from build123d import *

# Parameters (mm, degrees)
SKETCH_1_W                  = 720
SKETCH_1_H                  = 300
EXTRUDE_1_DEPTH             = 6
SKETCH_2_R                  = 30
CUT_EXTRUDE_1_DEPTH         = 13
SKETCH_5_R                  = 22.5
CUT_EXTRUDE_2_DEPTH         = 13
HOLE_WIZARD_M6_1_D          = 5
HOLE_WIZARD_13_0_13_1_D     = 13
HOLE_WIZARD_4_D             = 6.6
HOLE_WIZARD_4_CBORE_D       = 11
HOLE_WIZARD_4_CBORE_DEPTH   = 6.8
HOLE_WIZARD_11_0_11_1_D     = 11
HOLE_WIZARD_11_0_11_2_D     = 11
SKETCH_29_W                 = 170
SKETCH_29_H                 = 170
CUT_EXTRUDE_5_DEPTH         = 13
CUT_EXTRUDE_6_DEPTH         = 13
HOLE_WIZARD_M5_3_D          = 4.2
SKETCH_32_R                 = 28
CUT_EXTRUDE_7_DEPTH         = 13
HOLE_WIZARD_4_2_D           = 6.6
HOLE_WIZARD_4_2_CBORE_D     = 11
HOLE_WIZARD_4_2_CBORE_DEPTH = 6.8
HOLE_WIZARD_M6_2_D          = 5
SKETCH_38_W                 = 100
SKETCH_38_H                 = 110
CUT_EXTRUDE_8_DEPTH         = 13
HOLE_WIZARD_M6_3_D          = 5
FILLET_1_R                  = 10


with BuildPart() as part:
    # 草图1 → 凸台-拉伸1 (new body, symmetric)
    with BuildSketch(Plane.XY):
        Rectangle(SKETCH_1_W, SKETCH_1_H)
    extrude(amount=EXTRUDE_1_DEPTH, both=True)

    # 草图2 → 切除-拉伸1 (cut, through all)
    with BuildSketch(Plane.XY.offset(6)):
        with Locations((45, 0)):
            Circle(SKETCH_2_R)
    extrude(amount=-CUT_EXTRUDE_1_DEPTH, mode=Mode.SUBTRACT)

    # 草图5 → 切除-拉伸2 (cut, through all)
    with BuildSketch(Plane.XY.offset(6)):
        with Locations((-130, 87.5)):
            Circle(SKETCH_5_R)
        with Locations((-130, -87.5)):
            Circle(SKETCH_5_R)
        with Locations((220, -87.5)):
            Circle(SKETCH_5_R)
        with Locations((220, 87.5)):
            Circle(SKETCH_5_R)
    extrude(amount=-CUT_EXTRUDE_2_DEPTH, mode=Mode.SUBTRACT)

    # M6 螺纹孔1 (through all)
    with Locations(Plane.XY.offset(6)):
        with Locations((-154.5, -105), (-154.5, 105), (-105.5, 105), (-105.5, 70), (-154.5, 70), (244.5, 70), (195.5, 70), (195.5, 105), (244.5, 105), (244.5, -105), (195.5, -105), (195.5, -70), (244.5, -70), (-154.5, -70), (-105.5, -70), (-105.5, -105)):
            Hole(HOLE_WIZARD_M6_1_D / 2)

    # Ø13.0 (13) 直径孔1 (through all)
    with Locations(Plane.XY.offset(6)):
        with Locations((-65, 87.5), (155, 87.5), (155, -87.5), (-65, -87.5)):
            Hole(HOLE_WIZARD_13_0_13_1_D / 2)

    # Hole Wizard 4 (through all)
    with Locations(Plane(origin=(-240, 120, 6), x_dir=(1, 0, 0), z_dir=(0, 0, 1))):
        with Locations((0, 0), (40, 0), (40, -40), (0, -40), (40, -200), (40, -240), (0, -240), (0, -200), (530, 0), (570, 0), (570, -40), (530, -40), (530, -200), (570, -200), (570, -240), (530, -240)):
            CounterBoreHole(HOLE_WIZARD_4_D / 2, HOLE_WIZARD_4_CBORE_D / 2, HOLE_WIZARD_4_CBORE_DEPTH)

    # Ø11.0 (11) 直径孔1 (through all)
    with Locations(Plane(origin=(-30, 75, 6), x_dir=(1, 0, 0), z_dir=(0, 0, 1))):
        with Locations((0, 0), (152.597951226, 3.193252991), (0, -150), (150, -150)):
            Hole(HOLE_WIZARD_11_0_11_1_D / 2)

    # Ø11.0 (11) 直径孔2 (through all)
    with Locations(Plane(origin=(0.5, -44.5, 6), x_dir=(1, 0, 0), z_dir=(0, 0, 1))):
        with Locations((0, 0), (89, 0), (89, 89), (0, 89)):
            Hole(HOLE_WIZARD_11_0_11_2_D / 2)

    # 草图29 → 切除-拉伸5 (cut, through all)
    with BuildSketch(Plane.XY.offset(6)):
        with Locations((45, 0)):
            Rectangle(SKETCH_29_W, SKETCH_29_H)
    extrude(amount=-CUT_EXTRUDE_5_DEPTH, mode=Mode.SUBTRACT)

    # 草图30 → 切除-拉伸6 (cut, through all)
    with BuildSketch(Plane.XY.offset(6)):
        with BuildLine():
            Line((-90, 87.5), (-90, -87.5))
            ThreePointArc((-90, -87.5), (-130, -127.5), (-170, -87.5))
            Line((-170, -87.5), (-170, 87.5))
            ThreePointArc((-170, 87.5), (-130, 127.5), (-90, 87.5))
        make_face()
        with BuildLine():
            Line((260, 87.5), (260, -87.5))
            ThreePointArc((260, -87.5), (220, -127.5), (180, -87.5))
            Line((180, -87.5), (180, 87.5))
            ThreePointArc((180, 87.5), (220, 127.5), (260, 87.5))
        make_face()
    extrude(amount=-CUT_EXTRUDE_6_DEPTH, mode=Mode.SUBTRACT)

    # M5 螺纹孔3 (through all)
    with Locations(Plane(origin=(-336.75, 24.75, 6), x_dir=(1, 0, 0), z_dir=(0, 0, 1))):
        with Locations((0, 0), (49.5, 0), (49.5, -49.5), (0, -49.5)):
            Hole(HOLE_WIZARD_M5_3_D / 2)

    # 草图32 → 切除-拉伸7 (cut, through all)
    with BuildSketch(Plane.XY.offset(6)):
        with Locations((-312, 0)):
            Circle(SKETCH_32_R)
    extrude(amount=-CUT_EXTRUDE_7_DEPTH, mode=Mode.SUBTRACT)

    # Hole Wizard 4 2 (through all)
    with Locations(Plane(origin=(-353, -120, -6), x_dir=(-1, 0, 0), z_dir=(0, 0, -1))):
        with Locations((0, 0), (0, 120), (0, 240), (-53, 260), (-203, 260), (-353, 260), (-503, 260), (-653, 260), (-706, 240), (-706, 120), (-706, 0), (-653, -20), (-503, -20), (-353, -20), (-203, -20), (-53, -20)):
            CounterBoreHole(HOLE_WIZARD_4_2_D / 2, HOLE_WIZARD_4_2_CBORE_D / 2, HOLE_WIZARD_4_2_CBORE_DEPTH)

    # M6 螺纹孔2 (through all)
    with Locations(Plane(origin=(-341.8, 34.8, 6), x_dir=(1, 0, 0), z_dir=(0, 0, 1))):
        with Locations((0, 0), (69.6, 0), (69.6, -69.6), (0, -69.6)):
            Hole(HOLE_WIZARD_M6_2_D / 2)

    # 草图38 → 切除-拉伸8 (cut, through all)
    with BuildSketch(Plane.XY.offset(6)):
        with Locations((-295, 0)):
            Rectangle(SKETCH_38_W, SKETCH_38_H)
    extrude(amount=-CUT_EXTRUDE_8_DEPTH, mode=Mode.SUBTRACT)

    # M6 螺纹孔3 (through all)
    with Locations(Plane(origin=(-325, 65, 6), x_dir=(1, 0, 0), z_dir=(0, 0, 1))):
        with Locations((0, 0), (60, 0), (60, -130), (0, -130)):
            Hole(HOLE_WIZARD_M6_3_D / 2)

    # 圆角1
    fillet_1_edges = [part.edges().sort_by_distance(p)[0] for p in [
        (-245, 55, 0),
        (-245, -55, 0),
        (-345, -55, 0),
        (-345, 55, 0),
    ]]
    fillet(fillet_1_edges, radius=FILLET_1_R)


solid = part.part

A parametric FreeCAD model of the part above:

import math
import FreeCAD as App
import Part
import Sketcher
Q = App.Units.Quantity


def edges_at(feature, points):
    """Names of the edges that pass closest to the given points."""
    edges = feature.Shape.Edges
    near = lambda p: min(range(len(edges)), key=lambda i: edges[i].distToShape(Part.Vertex(*p))[0])
    return sorted({f"Edge{near(p) + 1}" for p in points})


def add_polygon(sketch, points):
    """Adds a closed chain of lines whose ends are joined by coincident constraints."""
    first, n = sketch.GeometryCount, len(points)
    for a, b in zip(points, points[1:] + points[:1]):
        sketch.addGeometry(Part.LineSegment(App.Vector(*a, 0), App.Vector(*b, 0)), False)
    for i in range(n):
        sketch.addConstraint(Sketcher.Constraint("Coincident", first + i, 2, first + (i + 1) % n, 1))

doc = App.newDocument("Part")
body = doc.addObject("PartDesign::Body", "Body")

# Sketch on XY plane
sketch1 = doc.addObject("Sketcher::SketchObject", "Sketch")
body.addObject(sketch1)
sketch1.AttachmentSupport = (doc.XY_Plane, [""])
sketch1.MapMode = "FlatFace"
add_polygon(sketch1, [(-360, 150), (-360, -150), (360, -150), (360, 150)])  # lines 0-3
sketch1.addConstraint([
    Sketcher.Constraint("Vertical", 0),
    Sketcher.Constraint("Horizontal", 1),
    Sketcher.Constraint("Vertical", 2),
    Sketcher.Constraint("Horizontal", 3),
    Sketcher.Constraint("Symmetric", 0, 2, 2, 2, -1, 1),
    Sketcher.Constraint("DistanceX", 1, 1, 1, 2, Q("720 mm")),
    Sketcher.Constraint("DistanceY", 0, 2, 0, 1, Q("300 mm")),
])
pad1 = doc.addObject("PartDesign::Pad", "Pad")
body.addObject(pad1)
pad1.Profile = sketch1
pad1.Length = 12
pad1.Midplane = True

# Sketch on XY plane
sketch2 = doc.addObject("Sketcher::SketchObject", "Sketch001")
body.addObject(sketch2)
sketch2.AttachmentSupport = (doc.XY_Plane, [""])
sketch2.MapMode = "FlatFace"
sketch2.AttachmentOffset = App.Placement(App.Vector(0, 0, 6), App.Rotation())
sketch2.addGeometry(Part.Circle(App.Vector(45, 0, 0), App.Vector(0, 0, 1), 30), False)
sketch2.addConstraint([
    Sketcher.Constraint("PointOnObject", 0, 3, -1),
    Sketcher.Constraint("Diameter", 0, Q("60 mm")),
    Sketcher.Constraint("DistanceX", -1, 1, 0, 3, Q("45 mm")),
])
pocket1 = doc.addObject("PartDesign::Pocket", "Pocket")
body.addObject(pocket1)
pocket1.Profile = sketch2
pocket1.Type = "ThroughAll"

# Sketch on XY plane
sketch3 = doc.addObject("Sketcher::SketchObject", "Sketch002")
body.addObject(sketch3)
sketch3.AttachmentSupport = (doc.XY_Plane, [""])
sketch3.MapMode = "FlatFace"
sketch3.AttachmentOffset = App.Placement(App.Vector(0, 0, 6), App.Rotation())
sketch3.addGeometry([
    Part.Circle(App.Vector(-130, 88, 0), App.Vector(0, 0, 1), 22),
    Part.Circle(App.Vector(-130, -88, 0), App.Vector(0, 0, 1), 22),
    Part.Circle(App.Vector(220, -88, 0), App.Vector(0, 0, 1), 22),
    Part.Circle(App.Vector(220, 88, 0), App.Vector(0, 0, 1), 22),
], False)
sketch3.addConstraint([
    Sketcher.Constraint("Equal", 0, 1),
    Sketcher.Constraint("Equal", 1, 2),
    Sketcher.Constraint("Equal", 2, 3),
    Sketcher.Constraint("Symmetric", 0, 3, 1, 3, -1),
    Sketcher.Constraint("Symmetric", 2, 3, 3, 3, -1),
    Sketcher.Constraint("Horizontal", 1, 3, 2, 3),
    Sketcher.Constraint("Diameter", 0, Q("45 mm")),
    Sketcher.Constraint("DistanceX", 0, 3, -1, 1, Q("130 mm")),
    Sketcher.Constraint("DistanceX", -1, 1, 2, 3, Q("220 mm")),
    Sketcher.Constraint("DistanceY", 1, 3, 0, 3, Q("175 mm")),
])
pocket2 = doc.addObject("PartDesign::Pocket", "Pocket001")
body.addObject(pocket2)
pocket2.Profile = sketch3
pocket2.Type = "ThroughAll"

# Sketch on XY plane
sketch4 = doc.addObject("Sketcher::SketchObject", "Sketch003")
body.addObject(sketch4)
sketch4.AttachmentSupport = (doc.XY_Plane, [""])
sketch4.MapMode = "FlatFace"
sketch4.AttachmentOffset = App.Placement(App.Vector(0, 0, 6), App.Rotation())
sketch4.addGeometry([
    Part.Circle(App.Vector(-154.5, -105, 0), App.Vector(0, 0, 1), 2.5),  # 0
    Part.Circle(App.Vector(-154.5, 105, 0), App.Vector(0, 0, 1), 2.5),  # 1
    Part.Circle(App.Vector(-105.5, 105, 0), App.Vector(0, 0, 1), 2.5),  # 2
    Part.Circle(App.Vector(-105.5, 70, 0), App.Vector(0, 0, 1), 2.5),  # 3
    Part.Circle(App.Vector(-154.5, 70, 0), App.Vector(0, 0, 1), 2.5),  # 4
    Part.Circle(App.Vector(244.5, 70, 0), App.Vector(0, 0, 1), 2.5),  # 5
    Part.Circle(App.Vector(195.5, 70, 0), App.Vector(0, 0, 1), 2.5),  # 6
    Part.Circle(App.Vector(195.5, 105, 0), App.Vector(0, 0, 1), 2.5),  # 7
    Part.Circle(App.Vector(244.5, 105, 0), App.Vector(0, 0, 1), 2.5),  # 8
    Part.Circle(App.Vector(244.5, -105, 0), App.Vector(0, 0, 1), 2.5),  # 9
    Part.Circle(App.Vector(195.5, -105, 0), App.Vector(0, 0, 1), 2.5),  # 10
    Part.Circle(App.Vector(195.5, -70, 0), App.Vector(0, 0, 1), 2.5),  # 11
    Part.Circle(App.Vector(244.5, -70, 0), App.Vector(0, 0, 1), 2.5),  # 12
    Part.Circle(App.Vector(-154.5, -70, 0), App.Vector(0, 0, 1), 2.5),  # 13
    Part.Circle(App.Vector(-105.5, -70, 0), App.Vector(0, 0, 1), 2.5),  # 14
    Part.Circle(App.Vector(-105.5, -105, 0), App.Vector(0, 0, 1), 2.5),  # 15
], False)
sketch4.addConstraint([
    Sketcher.Constraint("Equal", 0, 1),
    Sketcher.Constraint("Equal", 1, 2),
    Sketcher.Constraint("Equal", 2, 3),
    Sketcher.Constraint("Equal", 3, 4),
    Sketcher.Constraint("Equal", 4, 5),
    Sketcher.Constraint("Equal", 5, 6),
    Sketcher.Constraint("Equal", 6, 7),
    Sketcher.Constraint("Equal", 7, 8),
    Sketcher.Constraint("Equal", 8, 9),
    Sketcher.Constraint("Equal", 9, 10),
    Sketcher.Constraint("Equal", 10, 11),
    Sketcher.Constraint("Equal", 11, 12),
    Sketcher.Constraint("Equal", 12, 13),
    Sketcher.Constraint("Equal", 13, 14),
    Sketcher.Constraint("Equal", 14, 15),
    Sketcher.Constraint("Symmetric", 0, 3, 1, 3, -1),
    Sketcher.Constraint("Symmetric", 8, 3, 9, 3, -1),
    Sketcher.Constraint("Symmetric", 7, 3, 10, 3, -1),
    Sketcher.Constraint("Symmetric", 6, 3, 11, 3, -1),
    Sketcher.Constraint("Symmetric", 5, 3, 12, 3, -1),
    Sketcher.Constraint("Symmetric", 4, 3, 13, 3, -1),
    Sketcher.Constraint("Symmetric", 3, 3, 14, 3, -1),
    Sketcher.Constraint("Symmetric", 2, 3, 15, 3, -1),
    Sketcher.Constraint("Horizontal", 1, 3, 2, 3),
    Sketcher.Constraint("Horizontal", 3, 3, 4, 3),
    Sketcher.Constraint("Horizontal", 4, 3, 5, 3),
    Sketcher.Constraint("Horizontal", 5, 3, 6, 3),
    Sketcher.Constraint("Horizontal", 2, 3, 7, 3),
    Sketcher.Constraint("Horizontal", 7, 3, 8, 3),
    Sketcher.Constraint("Vertical", 2, 3, 3, 3),
    Sketcher.Constraint("Vertical", 1, 3, 4, 3),
    Sketcher.Constraint("Vertical", 6, 3, 7, 3),
    Sketcher.Constraint("Vertical", 5, 3, 8, 3),
    Sketcher.Constraint("Diameter", 0, Q("5 mm")),
    Sketcher.Constraint("DistanceY", 0, 3, -1, 1, Q("105 mm")),
    Sketcher.Constraint("DistanceY", -1, 1, 3, 3, Q("70 mm")),
    Sketcher.Constraint("DistanceX", 1, 3, 2, 3, Q("49 mm")),
    Sketcher.Constraint("DistanceX", 3, 3, 5, 3, Q("350 mm")),
    Sketcher.Constraint("DistanceX", 6, 3, 5, 3, Q("49 mm")),
    Sketcher.Constraint("DistanceX", 0, 3, -1, 1, Q("154.5 mm")),
])
doc.recompute()
hole = doc.addObject("PartDesign::Hole", "Hole")
body.addObject(hole)
hole.Profile = sketch4
hole.ThreadType = "None"
hole.Diameter = 5
hole.DepthType = "ThroughAll"

# Sketch on XY plane
sketch5 = doc.addObject("Sketcher::SketchObject", "Sketch004")
body.addObject(sketch5)
sketch5.AttachmentSupport = (doc.XY_Plane, [""])
sketch5.MapMode = "FlatFace"
sketch5.AttachmentOffset = App.Placement(App.Vector(0, 0, 6), App.Rotation())
sketch5.addGeometry([
    Part.Circle(App.Vector(-65, 88, 0), App.Vector(0, 0, 1), 6),
    Part.Circle(App.Vector(155, 88, 0), App.Vector(0, 0, 1), 6),
    Part.Circle(App.Vector(155, -88, 0), App.Vector(0, 0, 1), 6),
    Part.Circle(App.Vector(-65, -88, 0), App.Vector(0, 0, 1), 6),
], False)
sketch5.addConstraint([
    Sketcher.Constraint("Equal", 0, 1),
    Sketcher.Constraint("Equal", 1, 2),
    Sketcher.Constraint("Equal", 2, 3),
    Sketcher.Constraint("Symmetric", 1, 3, 2, 3, -1),
    Sketcher.Constraint("Symmetric", 0, 3, 3, 3, -1),
    Sketcher.Constraint("Horizontal", 0, 3, 1, 3),
    Sketcher.Constraint("Diameter", 0, Q("13 mm")),
    Sketcher.Constraint("DistanceX", 0, 3, -1, 1, Q("65 mm")),
    Sketcher.Constraint("DistanceX", -1, 1, 1, 3, Q("155 mm")),
    Sketcher.Constraint("DistanceY", 2, 3, 1, 3, Q("175 mm")),
])
doc.recompute()
hole2 = doc.addObject("PartDesign::Hole", "Hole001")
body.addObject(hole2)
hole2.Profile = sketch5
hole2.ThreadType = "None"
hole2.Diameter = 13
hole2.DepthType = "ThroughAll"

# Sketch on XY plane
sketch6 = doc.addObject("Sketcher::SketchObject", "Sketch005")
body.addObject(sketch6)
sketch6.AttachmentSupport = (doc.XY_Plane, [""])
sketch6.MapMode = "FlatFace"
sketch6.AttachmentOffset = App.Placement(App.Vector(0, 0, 6), App.Rotation())
sketch6.addGeometry([
    Part.Circle(App.Vector(-240, 120, 0), App.Vector(0, 0, 1), 3.3),  # 0
    Part.Circle(App.Vector(-200, 120, 0), App.Vector(0, 0, 1), 3.3),  # 1
    Part.Circle(App.Vector(-200, 80, 0), App.Vector(0, 0, 1), 3.3),  # 2
    Part.Circle(App.Vector(-240, 80, 0), App.Vector(0, 0, 1), 3.3),  # 3
    Part.Circle(App.Vector(-200, -80, 0), App.Vector(0, 0, 1), 3.3),  # 4
    Part.Circle(App.Vector(-200, -120, 0), App.Vector(0, 0, 1), 3.3),  # 5
    Part.Circle(App.Vector(-240, -120, 0), App.Vector(0, 0, 1), 3.3),  # 6
    Part.Circle(App.Vector(-240, -80, 0), App.Vector(0, 0, 1), 3.3),  # 7
    Part.Circle(App.Vector(290, 120, 0), App.Vector(0, 0, 1), 3.3),  # 8
    Part.Circle(App.Vector(330, 120, 0), App.Vector(0, 0, 1), 3.3),  # 9
    Part.Circle(App.Vector(330, 80, 0), App.Vector(0, 0, 1), 3.3),  # 10
    Part.Circle(App.Vector(290, 80, 0), App.Vector(0, 0, 1), 3.3),  # 11
    Part.Circle(App.Vector(290, -80, 0), App.Vector(0, 0, 1), 3.3),  # 12
    Part.Circle(App.Vector(330, -80, 0), App.Vector(0, 0, 1), 3.3),  # 13
    Part.Circle(App.Vector(330, -120, 0), App.Vector(0, 0, 1), 3.3),  # 14
    Part.Circle(App.Vector(290, -120, 0), App.Vector(0, 0, 1), 3.3),  # 15
], False)
sketch6.addConstraint([
    Sketcher.Constraint("Equal", 0, 1),
    Sketcher.Constraint("Equal", 1, 2),
    Sketcher.Constraint("Equal", 2, 3),
    Sketcher.Constraint("Equal", 3, 4),
    Sketcher.Constraint("Equal", 4, 5),
    Sketcher.Constraint("Equal", 5, 6),
    Sketcher.Constraint("Equal", 6, 7),
    Sketcher.Constraint("Equal", 7, 8),
    Sketcher.Constraint("Equal", 8, 9),
    Sketcher.Constraint("Equal", 9, 10),
    Sketcher.Constraint("Equal", 10, 11),
    Sketcher.Constraint("Equal", 11, 12),
    Sketcher.Constraint("Equal", 12, 13),
    Sketcher.Constraint("Equal", 13, 14),
    Sketcher.Constraint("Equal", 14, 15),
    Sketcher.Constraint("Symmetric", 2, 3, 4, 3, -1),
    Sketcher.Constraint("Symmetric", 1, 3, 5, 3, -1),
    Sketcher.Constraint("Symmetric", 0, 3, 6, 3, -1),
    Sketcher.Constraint("Symmetric", 3, 3, 7, 3, -1),
    Sketcher.Constraint("Symmetric", 11, 3, 12, 3, -1),
    Sketcher.Constraint("Symmetric", 10, 3, 13, 3, -1),
    Sketcher.Constraint("Symmetric", 9, 3, 14, 3, -1),
    Sketcher.Constraint("Symmetric", 8, 3, 15, 3, -1),
    Sketcher.Constraint("Horizontal", 0, 3, 1, 3),
    Sketcher.Constraint("Horizontal", 2, 3, 3, 3),
    Sketcher.Constraint("Horizontal", 1, 3, 8, 3),
    Sketcher.Constraint("Horizontal", 8, 3, 9, 3),
    Sketcher.Constraint("Horizontal", 3, 3, 10, 3),
    Sketcher.Constraint("Horizontal", 10, 3, 11, 3),
    Sketcher.Constraint("Vertical", 1, 3, 2, 3),
    Sketcher.Constraint("Vertical", 0, 3, 3, 3),
    Sketcher.Constraint("Vertical", 9, 3, 10, 3),
    Sketcher.Constraint("Vertical", 8, 3, 11, 3),
    Sketcher.Constraint("Diameter", 0, Q("6.6 mm")),
    Sketcher.Constraint("DistanceX", 0, 3, -1, 1, Q("240 mm")),
    Sketcher.Constraint("DistanceY", -1, 1, 0, 3, Q("120 mm")),
    Sketcher.Constraint("DistanceX", 1, 3, -1, 1, Q("200 mm")),
    Sketcher.Constraint("DistanceY", -1, 1, 2, 3, Q("80 mm")),
    Sketcher.Constraint("DistanceX", -1, 1, 8, 3, Q("290 mm")),
    Sketcher.Constraint("DistanceX", -1, 1, 9, 3, Q("330 mm")),
])
doc.recompute()
hole3 = doc.addObject("PartDesign::Hole", "Hole002")
body.addObject(hole3)
hole3.Profile = sketch6
hole3.ThreadType = "None"
hole3.Diameter = 6.6
hole3.DepthType = "ThroughAll"
hole3.HoleCutType = "Counterbore"
hole3.HoleCutDiameter = 11
hole3.HoleCutDepth = 6.8

# Sketch on XY plane
sketch7 = doc.addObject("Sketcher::SketchObject", "Sketch006")
body.addObject(sketch7)
sketch7.AttachmentSupport = (doc.XY_Plane, [""])
sketch7.MapMode = "FlatFace"
sketch7.AttachmentOffset = App.Placement(App.Vector(0, 0, 6), App.Rotation())
sketch7.addGeometry([
    Part.Circle(App.Vector(-30, 75, 0), App.Vector(0, 0, 1), 6),
    Part.Circle(App.Vector(123, 78, 0), App.Vector(0, 0, 1), 6),
    Part.Circle(App.Vector(-30, -75, 0), App.Vector(0, 0, 1), 6),
    Part.Circle(App.Vector(120, -75, 0), App.Vector(0, 0, 1), 6),
], False)
sketch7.addConstraint([
    Sketcher.Constraint("Equal", 0, 1),
    Sketcher.Constraint("Equal", 1, 2),
    Sketcher.Constraint("Equal", 2, 3),
    Sketcher.Constraint("Symmetric", 0, 3, 2, 3, -1),
    Sketcher.Constraint("Horizontal", 2, 3, 3, 3),
    Sketcher.Constraint("Diameter", 0, Q("11 mm")),
    Sketcher.Constraint("DistanceX", 0, 3, -1, 1, Q("30 mm")),
    Sketcher.Constraint("DistanceY", -1, 1, 0, 3, Q("75 mm")),
    Sketcher.Constraint("DistanceX", -1, 1, 3, 3, Q("120 mm")),
    Sketcher.Constraint("DistanceX", -1, 1, 1, 3, Q("122.597951 mm")),
    Sketcher.Constraint("DistanceY", -1, 1, 1, 3, Q("78.193253 mm")),
])
doc.recompute()
hole4 = doc.addObject("PartDesign::Hole", "Hole003")
body.addObject(hole4)
hole4.Profile = sketch7
hole4.ThreadType = "None"
hole4.Diameter = 11
hole4.DepthType = "ThroughAll"

# Sketch on XY plane
sketch8 = doc.addObject("Sketcher::SketchObject", "Sketch007")
body.addObject(sketch8)
sketch8.AttachmentSupport = (doc.XY_Plane, [""])
sketch8.MapMode = "FlatFace"
sketch8.AttachmentOffset = App.Placement(App.Vector(0, 0, 6), App.Rotation())
sketch8.addGeometry([
    Part.Circle(App.Vector(0, -44, 0), App.Vector(0, 0, 1), 6),
    Part.Circle(App.Vector(90, -44, 0), App.Vector(0, 0, 1), 6),
    Part.Circle(App.Vector(90, 44, 0), App.Vector(0, 0, 1), 6),
    Part.Circle(App.Vector(0, 44, 0), App.Vector(0, 0, 1), 6),
], False)
sketch8.addConstraint([
    Sketcher.Constraint("Equal", 0, 1),
    Sketcher.Constraint("Equal", 1, 2),
    Sketcher.Constraint("Equal", 2, 3),
    Sketcher.Constraint("Symmetric", 1, 3, 2, 3, -1),
    Sketcher.Constraint("Symmetric", 0, 3, 3, 3, -1),
    Sketcher.Constraint("Horizontal", 0, 3, 1, 3),
    Sketcher.Constraint("Diameter", 0, Q("11 mm")),
    Sketcher.Constraint("DistanceX", 0, 3, 1, 3, Q("89 mm")),
    Sketcher.Constraint("DistanceY", 1, 3, 2, 3, Q("89 mm")),
    Sketcher.Constraint("DistanceX", -1, 1, 0, 3, Q("0.5 mm")),
])
doc.recompute()
hole5 = doc.addObject("PartDesign::Hole", "Hole004")
body.addObject(hole5)
hole5.Profile = sketch8
hole5.ThreadType = "None"
hole5.Diameter = 11
hole5.DepthType = "ThroughAll"

# Sketch on XY plane
sketch9 = doc.addObject("Sketcher::SketchObject", "Sketch008")
body.addObject(sketch9)
sketch9.AttachmentSupport = (doc.XY_Plane, [""])
sketch9.MapMode = "FlatFace"
sketch9.AttachmentOffset = App.Placement(App.Vector(0, 0, 6), App.Rotation())
add_polygon(sketch9, [(-40, 85), (-40, -85), (130, -85), (130, 85)])  # lines 0-3
sketch9.addConstraint([
    Sketcher.Constraint("Vertical", 0),
    Sketcher.Constraint("Horizontal", 1),
    Sketcher.Constraint("Vertical", 2),
    Sketcher.Constraint("Horizontal", 3),
    Sketcher.Constraint("Equal", 3, 0),
    Sketcher.Constraint("DistanceX", 1, 1, 1, 2, Q("170 mm")),
    Sketcher.Constraint("DistanceX", 0, 2, -1, 1, Q("40 mm")),
    Sketcher.Constraint("DistanceY", 0, 2, -1, 1, Q("85 mm")),
])
pocket3 = doc.addObject("PartDesign::Pocket", "Pocket002")
body.addObject(pocket3)
pocket3.Profile = sketch9
pocket3.Type = "ThroughAll"

# Sketch on XY plane
sketch10 = doc.addObject("Sketcher::SketchObject", "Sketch009")
body.addObject(sketch10)
sketch10.AttachmentSupport = (doc.XY_Plane, [""])
sketch10.MapMode = "FlatFace"
sketch10.AttachmentOffset = App.Placement(App.Vector(0, 0, 6), App.Rotation())
sketch10.addGeometry([
    Part.LineSegment(App.Vector(-90, -88, 0), App.Vector(-90, 88, 0)),  # 0
    Part.ArcOfCircle(Part.Circle(App.Vector(-130, 88, 0), App.Vector(0, 0, 1), 40), math.radians(0), math.radians(180)),  # 1
    Part.LineSegment(App.Vector(-170, 88, 0), App.Vector(-170, -88, 0)),  # 2
    Part.ArcOfCircle(Part.Circle(App.Vector(-130, -88, 0), App.Vector(0, 0, 1), 40), math.radians(180), math.radians(360)),  # 3
    Part.LineSegment(App.Vector(260, -88, 0), App.Vector(260, 88, 0)),  # 4
    Part.ArcOfCircle(Part.Circle(App.Vector(220, 88, 0), App.Vector(0, 0, 1), 40), math.radians(0), math.radians(180)),  # 5
    Part.LineSegment(App.Vector(180, 88, 0), App.Vector(180, -88, 0)),  # 6
    Part.ArcOfCircle(Part.Circle(App.Vector(220, -88, 0), App.Vector(0, 0, 1), 40), math.radians(180), math.radians(360)),  # 7
], False)
sketch10.addConstraint([
    Sketcher.Constraint("Tangent", 0, 2, 1, 1),
    Sketcher.Constraint("Tangent", 1, 2, 2, 1),
    Sketcher.Constraint("Tangent", 2, 2, 3, 1),
    Sketcher.Constraint("Tangent", 3, 2, 0, 1),
    Sketcher.Constraint("Tangent", 4, 2, 5, 1),
    Sketcher.Constraint("Tangent", 5, 2, 6, 1),
    Sketcher.Constraint("Tangent", 6, 2, 7, 1),
    Sketcher.Constraint("Tangent", 7, 2, 4, 1),
    Sketcher.Constraint("Vertical", 0),
    Sketcher.Constraint("Vertical", 2),
    Sketcher.Constraint("Vertical", 4),
    Sketcher.Constraint("Vertical", 6),
    Sketcher.Constraint("Equal", 3, 5),
    Sketcher.Constraint("Horizontal", 1, 3, 5, 3),
    Sketcher.Constraint("Horizontal", 3, 3, 7, 3),
    Sketcher.Constraint("Radius", 1, Q("40 mm")),
    Sketcher.Constraint("DistanceY", 0, 1, 0, 2, Q("175 mm")),
    Sketcher.Constraint("DistanceX", 1, 3, -1, 1, Q("130 mm")),
    Sketcher.Constraint("DistanceX", -1, 1, 5, 3, Q("220 mm")),
    Sketcher.Constraint("DistanceY", -1, 1, 1, 3, Q("87.5 mm")),
])
pocket4 = doc.addObject("PartDesign::Pocket", "Pocket003")
body.addObject(pocket4)
pocket4.Profile = sketch10
pocket4.Type = "ThroughAll"

# Sketch on XY plane
sketch11 = doc.addObject("Sketcher::SketchObject", "Sketch010")
body.addObject(sketch11)
sketch11.AttachmentSupport = (doc.XY_Plane, [""])
sketch11.MapMode = "FlatFace"
sketch11.AttachmentOffset = App.Placement(App.Vector(0, 0, 6), App.Rotation())
sketch11.addGeometry([
    Part.Circle(App.Vector(-336.8, 24.8, 0), App.Vector(0, 0, 1), 2.1),
    Part.Circle(App.Vector(-287.2, 24.8, 0), App.Vector(0, 0, 1), 2.1),
    Part.Circle(App.Vector(-287.2, -24.8, 0), App.Vector(0, 0, 1), 2.1),
    Part.Circle(App.Vector(-336.8, -24.8, 0), App.Vector(0, 0, 1), 2.1),
], False)
sketch11.addConstraint([
    Sketcher.Constraint("Equal", 0, 1),
    Sketcher.Constraint("Equal", 1, 2),
    Sketcher.Constraint("Equal", 2, 3),
    Sketcher.Constraint("Symmetric", 1, 3, 2, 3, -1),
    Sketcher.Constraint("Symmetric", 0, 3, 3, 3, -1),
    Sketcher.Constraint("Horizontal", 0, 3, 1, 3),
    Sketcher.Constraint("Diameter", 0, Q("4.2 mm")),
    Sketcher.Constraint("DistanceX", 0, 3, 1, 3, Q("49.5 mm")),
    Sketcher.Constraint("DistanceY", 2, 3, 1, 3, Q("49.5 mm")),
    Sketcher.Constraint("DistanceX", 0, 3, -1, 1, Q("336.75 mm")),
])
doc.recompute()
hole6 = doc.addObject("PartDesign::Hole", "Hole005")
body.addObject(hole6)
hole6.Profile = sketch11
hole6.ThreadType = "None"
hole6.Diameter = 4.2
hole6.DepthType = "ThroughAll"

# Sketch on XY plane
sketch12 = doc.addObject("Sketcher::SketchObject", "Sketch011")
body.addObject(sketch12)
sketch12.AttachmentSupport = (doc.XY_Plane, [""])
sketch12.MapMode = "FlatFace"
sketch12.AttachmentOffset = App.Placement(App.Vector(0, 0, 6), App.Rotation())
sketch12.addGeometry(Part.Circle(App.Vector(-312, 0, 0), App.Vector(0, 0, 1), 28), False)
sketch12.addConstraint([
    Sketcher.Constraint("PointOnObject", 0, 3, -1),
    Sketcher.Constraint("Diameter", 0, Q("56 mm")),
    Sketcher.Constraint("DistanceX", 0, 3, -1, 1, Q("312 mm")),
])
pocket5 = doc.addObject("PartDesign::Pocket", "Pocket004")
body.addObject(pocket5)
pocket5.Profile = sketch12
pocket5.Type = "ThroughAll"

# Sketch on XY plane
sketch13 = doc.addObject("Sketcher::SketchObject", "Sketch012")
body.addObject(sketch13)
sketch13.AttachmentSupport = (doc.XY_Plane, [""])
sketch13.MapMode = "FlatFace"
sketch13.AttachmentOffset = App.Placement(App.Vector(0, 0, -6), App.Rotation())
sketch13.addGeometry([
    Part.Circle(App.Vector(-353, -120, 0), App.Vector(0, 0, 1), 3.3),  # 0
    Part.Circle(App.Vector(-353, 0, 0), App.Vector(0, 0, 1), 3.3),  # 1
    Part.Circle(App.Vector(-353, 120, 0), App.Vector(0, 0, 1), 3.3),  # 2
    Part.Circle(App.Vector(-300, 140, 0), App.Vector(0, 0, 1), 3.3),  # 3
    Part.Circle(App.Vector(-150, 140, 0), App.Vector(0, 0, 1), 3.3),  # 4
    Part.Circle(App.Vector(0, 140, 0), App.Vector(0, 0, 1), 3.3),  # 5
    Part.Circle(App.Vector(150, 140, 0), App.Vector(0, 0, 1), 3.3),  # 6
    Part.Circle(App.Vector(300, 140, 0), App.Vector(0, 0, 1), 3.3),  # 7
    Part.Circle(App.Vector(353, 120, 0), App.Vector(0, 0, 1), 3.3),  # 8
    Part.Circle(App.Vector(353, 0, 0), App.Vector(0, 0, 1), 3.3),  # 9
    Part.Circle(App.Vector(353, -120, 0), App.Vector(0, 0, 1), 3.3),  # 10
    Part.Circle(App.Vector(300, -140, 0), App.Vector(0, 0, 1), 3.3),  # 11
    Part.Circle(App.Vector(150, -140, 0), App.Vector(0, 0, 1), 3.3),  # 12
    Part.Circle(App.Vector(0, -140, 0), App.Vector(0, 0, 1), 3.3),  # 13
    Part.Circle(App.Vector(-150, -140, 0), App.Vector(0, 0, 1), 3.3),  # 14
    Part.Circle(App.Vector(-300, -140, 0), App.Vector(0, 0, 1), 3.3),  # 15
], False)
sketch13.addConstraint([
    Sketcher.Constraint("Equal", 0, 1),
    Sketcher.Constraint("Equal", 1, 2),
    Sketcher.Constraint("Equal", 2, 3),
    Sketcher.Constraint("Equal", 3, 4),
    Sketcher.Constraint("Equal", 4, 5),
    Sketcher.Constraint("Equal", 5, 6),
    Sketcher.Constraint("Equal", 6, 7),
    Sketcher.Constraint("Equal", 7, 8),
    Sketcher.Constraint("Equal", 8, 9),
    Sketcher.Constraint("Equal", 9, 10),
    Sketcher.Constraint("Equal", 10, 11),
    Sketcher.Constraint("Equal", 11, 12),
    Sketcher.Constraint("Equal", 12, 13),
    Sketcher.Constraint("Equal", 13, 14),
    Sketcher.Constraint("Equal", 14, 15),
    Sketcher.Constraint("Symmetric", 0, 3, 8, 3, -1, 1),
    Sketcher.Constraint("Symmetric", 1, 3, 9, 3, -1, 1),
    Sketcher.Constraint("Symmetric", 2, 3, 10, 3, -1, 1),
    Sketcher.Constraint("Symmetric", 3, 3, 11, 3, -1, 1),
    Sketcher.Constraint("Symmetric", 4, 3, 12, 3, -1, 1),
    Sketcher.Constraint("Symmetric", 5, 3, 13, 3, -1, 1),
    Sketcher.Constraint("Symmetric", 6, 3, 14, 3, -1, 1),
    Sketcher.Constraint("Symmetric", 7, 3, 15, 3, -1, 1),
    Sketcher.Constraint("Symmetric", 4, 3, 6, 3, -2),
    Sketcher.Constraint("Symmetric", 3, 3, 7, 3, -2),
    Sketcher.Constraint("Symmetric", 2, 3, 8, 3, -2),
    Sketcher.Constraint("PointOnObject", 1, 3, -1),
    Sketcher.Constraint("PointOnObject", 5, 3, -2),
    Sketcher.Constraint("Horizontal", 3, 3, 4, 3),
    Sketcher.Constraint("Horizontal", 4, 3, 5, 3),
    Sketcher.Constraint("Vertical", 0, 3, 1, 3),
    Sketcher.Constraint("Diameter", 0, Q("6.6 mm")),
    Sketcher.Constraint("DistanceX", 0, 3, -1, 1, Q("353 mm")),
    Sketcher.Constraint("DistanceY", 0, 3, -1, 1, Q("120 mm")),
    Sketcher.Constraint("DistanceX", 3, 3, -1, 1, Q("300 mm")),
    Sketcher.Constraint("DistanceY", -1, 1, 3, 3, Q("140 mm")),
    Sketcher.Constraint("DistanceX", 4, 3, -1, 1, Q("150 mm")),
])
doc.recompute()
hole7 = doc.addObject("PartDesign::Hole", "Hole006")
body.addObject(hole7)
hole7.Profile = sketch13
hole7.ThreadType = "None"
hole7.Diameter = 6.6
hole7.DepthType = "ThroughAll"
hole7.HoleCutType = "Counterbore"
hole7.HoleCutDiameter = 11
hole7.HoleCutDepth = 6.8
hole7.Reversed = True

# Sketch on XY plane
sketch14 = doc.addObject("Sketcher::SketchObject", "Sketch013")
body.addObject(sketch14)
sketch14.AttachmentSupport = (doc.XY_Plane, [""])
sketch14.MapMode = "FlatFace"
sketch14.AttachmentOffset = App.Placement(App.Vector(0, 0, 6), App.Rotation())
sketch14.addGeometry([
    Part.Circle(App.Vector(-341.8, 34.8, 0), App.Vector(0, 0, 1), 2.5),
    Part.Circle(App.Vector(-272.2, 34.8, 0), App.Vector(0, 0, 1), 2.5),
    Part.Circle(App.Vector(-272.2, -34.8, 0), App.Vector(0, 0, 1), 2.5),
    Part.Circle(App.Vector(-341.8, -34.8, 0), App.Vector(0, 0, 1), 2.5),
], False)
sketch14.addConstraint([
    Sketcher.Constraint("Equal", 0, 1),
    Sketcher.Constraint("Equal", 1, 2),
    Sketcher.Constraint("Equal", 2, 3),
    Sketcher.Constraint("Symmetric", 1, 3, 2, 3, -1),
    Sketcher.Constraint("Symmetric", 0, 3, 3, 3, -1),
    Sketcher.Constraint("Horizontal", 0, 3, 1, 3),
    Sketcher.Constraint("Diameter", 0, Q("5 mm")),
    Sketcher.Constraint("DistanceX", 0, 3, -1, 1, Q("341.8 mm")),
    Sketcher.Constraint("DistanceY", -1, 1, 0, 3, Q("34.8 mm")),
    Sketcher.Constraint("DistanceX", 1, 3, -1, 1, Q("272.2 mm")),
])
doc.recompute()
hole8 = doc.addObject("PartDesign::Hole", "Hole007")
body.addObject(hole8)
hole8.Profile = sketch14
hole8.ThreadType = "None"
hole8.Diameter = 5
hole8.DepthType = "ThroughAll"

# Sketch on XY plane
sketch15 = doc.addObject("Sketcher::SketchObject", "Sketch014")
body.addObject(sketch15)
sketch15.AttachmentSupport = (doc.XY_Plane, [""])
sketch15.MapMode = "FlatFace"
sketch15.AttachmentOffset = App.Placement(App.Vector(0, 0, 6), App.Rotation())
add_polygon(sketch15, [(-345, 55), (-345, -55), (-245, -55), (-245, 55)])  # lines 0-3
sketch15.addConstraint([
    Sketcher.Constraint("Vertical", 0),
    Sketcher.Constraint("Horizontal", 1),
    Sketcher.Constraint("Vertical", 2),
    Sketcher.Constraint("Horizontal", 3),
    Sketcher.Constraint("DistanceX", 1, 1, 1, 2, Q("100 mm")),
    Sketcher.Constraint("DistanceY", 0, 2, 0, 1, Q("110 mm")),
    Sketcher.Constraint("DistanceX", 0, 2, -1, 1, Q("345 mm")),
    Sketcher.Constraint("DistanceY", 0, 2, -1, 1, Q("55 mm")),
])
pocket6 = doc.addObject("PartDesign::Pocket", "Pocket005")
body.addObject(pocket6)
pocket6.Profile = sketch15
pocket6.Type = "ThroughAll"

# Sketch on XY plane
sketch16 = doc.addObject("Sketcher::SketchObject", "Sketch015")
body.addObject(sketch16)
sketch16.AttachmentSupport = (doc.XY_Plane, [""])
sketch16.MapMode = "FlatFace"
sketch16.AttachmentOffset = App.Placement(App.Vector(0, 0, 6), App.Rotation())
sketch16.addGeometry([
    Part.Circle(App.Vector(-325, 65, 0), App.Vector(0, 0, 1), 2.5),
    Part.Circle(App.Vector(-265, 65, 0), App.Vector(0, 0, 1), 2.5),
    Part.Circle(App.Vector(-265, -65, 0), App.Vector(0, 0, 1), 2.5),
    Part.Circle(App.Vector(-325, -65, 0), App.Vector(0, 0, 1), 2.5),
], False)
sketch16.addConstraint([
    Sketcher.Constraint("Equal", 0, 1),
    Sketcher.Constraint("Equal", 1, 2),
    Sketcher.Constraint("Equal", 2, 3),
    Sketcher.Constraint("Symmetric", 1, 3, 2, 3, -1),
    Sketcher.Constraint("Symmetric", 0, 3, 3, 3, -1),
    Sketcher.Constraint("Horizontal", 0, 3, 1, 3),
    Sketcher.Constraint("Diameter", 0, Q("5 mm")),
    Sketcher.Constraint("DistanceX", 0, 3, -1, 1, Q("325 mm")),
    Sketcher.Constraint("DistanceY", -1, 1, 0, 3, Q("65 mm")),
    Sketcher.Constraint("DistanceX", 1, 3, -1, 1, Q("265 mm")),
])
doc.recompute()
hole9 = doc.addObject("PartDesign::Hole", "Hole008")
body.addObject(hole9)
hole9.Profile = sketch16
hole9.ThreadType = "None"
hole9.Diameter = 5
hole9.DepthType = "ThroughAll"
doc.recompute()

fillet = doc.addObject("PartDesign::Fillet", "Fillet")
body.addObject(fillet)
fillet.Base = (hole9, edges_at(hole9, [
    (-245, 55, 0),
    (-245, -55, 0),
    (-345, -55, 0),
    (-345, 55, 0),
]))
fillet.Radius = 10

doc.recompute()
